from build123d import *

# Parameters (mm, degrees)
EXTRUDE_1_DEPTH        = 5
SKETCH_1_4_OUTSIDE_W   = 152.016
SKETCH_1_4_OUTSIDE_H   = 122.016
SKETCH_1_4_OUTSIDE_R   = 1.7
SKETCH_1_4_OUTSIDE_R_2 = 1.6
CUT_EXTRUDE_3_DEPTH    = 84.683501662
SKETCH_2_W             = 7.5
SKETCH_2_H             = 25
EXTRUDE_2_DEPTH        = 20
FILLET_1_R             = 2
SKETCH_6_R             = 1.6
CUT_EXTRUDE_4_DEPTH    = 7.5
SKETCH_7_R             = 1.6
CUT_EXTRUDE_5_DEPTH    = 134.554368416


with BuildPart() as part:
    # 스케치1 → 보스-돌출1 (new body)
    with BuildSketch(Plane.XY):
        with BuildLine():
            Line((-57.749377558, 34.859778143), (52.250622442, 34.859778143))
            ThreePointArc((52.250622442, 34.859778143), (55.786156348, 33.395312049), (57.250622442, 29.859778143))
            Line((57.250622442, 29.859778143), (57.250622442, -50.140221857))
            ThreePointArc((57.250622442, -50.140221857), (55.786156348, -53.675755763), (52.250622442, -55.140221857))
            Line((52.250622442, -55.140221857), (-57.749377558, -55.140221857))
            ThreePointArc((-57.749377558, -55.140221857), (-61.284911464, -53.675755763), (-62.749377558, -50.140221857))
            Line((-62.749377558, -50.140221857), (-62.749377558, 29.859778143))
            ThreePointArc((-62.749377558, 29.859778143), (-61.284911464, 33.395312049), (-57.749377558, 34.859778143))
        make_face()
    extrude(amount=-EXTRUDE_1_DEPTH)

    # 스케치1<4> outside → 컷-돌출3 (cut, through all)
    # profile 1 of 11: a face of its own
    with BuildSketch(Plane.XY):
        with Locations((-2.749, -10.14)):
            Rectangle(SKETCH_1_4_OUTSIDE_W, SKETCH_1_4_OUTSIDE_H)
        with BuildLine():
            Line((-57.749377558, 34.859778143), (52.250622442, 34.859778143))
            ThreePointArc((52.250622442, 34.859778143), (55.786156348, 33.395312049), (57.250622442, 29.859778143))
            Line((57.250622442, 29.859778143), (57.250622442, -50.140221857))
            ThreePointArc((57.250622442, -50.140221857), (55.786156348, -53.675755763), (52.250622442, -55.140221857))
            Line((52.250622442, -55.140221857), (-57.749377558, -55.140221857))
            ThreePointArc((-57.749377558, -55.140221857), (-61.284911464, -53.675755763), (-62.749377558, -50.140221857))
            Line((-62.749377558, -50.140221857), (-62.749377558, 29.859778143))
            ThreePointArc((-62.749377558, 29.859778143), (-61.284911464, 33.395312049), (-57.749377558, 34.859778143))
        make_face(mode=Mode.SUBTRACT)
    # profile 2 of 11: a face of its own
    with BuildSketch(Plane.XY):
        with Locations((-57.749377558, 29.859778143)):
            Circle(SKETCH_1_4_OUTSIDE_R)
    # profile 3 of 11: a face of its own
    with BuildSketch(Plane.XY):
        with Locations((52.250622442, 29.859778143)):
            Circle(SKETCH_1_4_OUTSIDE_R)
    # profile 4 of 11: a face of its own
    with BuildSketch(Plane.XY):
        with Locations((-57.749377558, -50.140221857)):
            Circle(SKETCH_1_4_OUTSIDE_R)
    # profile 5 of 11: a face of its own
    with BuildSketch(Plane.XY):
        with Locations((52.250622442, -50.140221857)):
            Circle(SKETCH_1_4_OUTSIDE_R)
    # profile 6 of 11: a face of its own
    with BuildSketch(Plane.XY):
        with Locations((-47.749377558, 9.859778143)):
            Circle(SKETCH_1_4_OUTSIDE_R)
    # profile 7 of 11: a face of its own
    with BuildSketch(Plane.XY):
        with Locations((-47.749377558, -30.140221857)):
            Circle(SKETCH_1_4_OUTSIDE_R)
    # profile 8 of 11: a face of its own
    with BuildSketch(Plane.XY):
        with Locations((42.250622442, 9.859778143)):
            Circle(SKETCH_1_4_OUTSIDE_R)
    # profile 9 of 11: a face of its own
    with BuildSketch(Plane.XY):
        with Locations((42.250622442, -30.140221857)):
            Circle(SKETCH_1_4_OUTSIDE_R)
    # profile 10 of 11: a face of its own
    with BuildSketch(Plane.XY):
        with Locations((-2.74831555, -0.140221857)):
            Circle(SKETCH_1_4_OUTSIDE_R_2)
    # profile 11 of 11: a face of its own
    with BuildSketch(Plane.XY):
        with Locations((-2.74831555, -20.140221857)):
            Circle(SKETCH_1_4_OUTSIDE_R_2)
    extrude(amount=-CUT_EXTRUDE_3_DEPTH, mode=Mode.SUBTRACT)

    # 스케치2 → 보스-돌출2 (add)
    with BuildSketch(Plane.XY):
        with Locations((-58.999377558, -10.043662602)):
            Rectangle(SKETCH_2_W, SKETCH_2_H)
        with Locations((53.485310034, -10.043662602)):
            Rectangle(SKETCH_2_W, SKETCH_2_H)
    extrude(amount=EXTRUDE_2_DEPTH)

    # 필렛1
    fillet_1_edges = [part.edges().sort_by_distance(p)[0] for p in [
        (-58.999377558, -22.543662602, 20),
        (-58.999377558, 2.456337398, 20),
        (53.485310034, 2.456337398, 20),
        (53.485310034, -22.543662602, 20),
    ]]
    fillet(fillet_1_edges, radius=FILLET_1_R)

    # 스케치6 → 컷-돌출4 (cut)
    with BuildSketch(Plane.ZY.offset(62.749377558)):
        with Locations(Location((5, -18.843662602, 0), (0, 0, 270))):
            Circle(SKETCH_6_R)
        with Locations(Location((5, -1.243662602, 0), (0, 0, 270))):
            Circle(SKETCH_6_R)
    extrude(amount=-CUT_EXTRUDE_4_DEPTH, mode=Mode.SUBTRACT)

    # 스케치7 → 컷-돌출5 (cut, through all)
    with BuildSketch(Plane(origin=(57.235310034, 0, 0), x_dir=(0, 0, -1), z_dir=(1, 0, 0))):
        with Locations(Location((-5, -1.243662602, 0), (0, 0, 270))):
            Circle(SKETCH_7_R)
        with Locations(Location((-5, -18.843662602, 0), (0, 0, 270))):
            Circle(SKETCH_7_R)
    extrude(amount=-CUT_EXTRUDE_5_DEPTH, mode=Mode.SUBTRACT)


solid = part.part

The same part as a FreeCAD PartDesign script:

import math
import FreeCAD as App
import Part
import Sketcher
from FreeCAD import Vector
Q = App.Units.Quantity


def edges_at(feature, points):
    """Names of the edges that pass closest to the given points."""
    edges = feature.Shape.Edges
    near = lambda p: min(range(len(edges)), key=lambda i: edges[i].distToShape(Part.Vertex(*p))[0])
    return sorted({f"Edge{near(p) + 1}" for p in points})

doc = App.newDocument("Part")
params = doc.addObject("Spreadsheet::Sheet", "Params")
for row, (alias, value) in enumerate([
    ("sketch1_radius", "5 mm"),
    ("sketch1_width", "110 mm"),
    ("sketch1_height", "80 mm"),
    ("pad1_length", "5 mm"),
    ("sketch2_radius", "5 mm"),
    ("sketch2_diameter", "3.4 mm"),
    ("sketch2_diameter2", "3.2 mm"),
    ("sketch2_width", "110 mm"),
    ("sketch2_height", "80 mm"),
    ("pocket1_length", "84.683502 mm"),
    ("sketch3_height", "25 mm"),
    ("sketch3_width", "7.5 mm"),
    ("pad2_length", "20 mm"),
    ("fillet_radius", "2 mm"),
    ("sketch4_diameter", "3.2 mm"),
    ("pocket2_length", "7.5 mm"),
    ("sketch5_diameter", "3.2 mm"),
], start=1):
    params.set(f"A{row}", alias)
    params.set(f"B{row}", "=" + value)
    params.setAlias(f"B{row}", alias)

body = doc.addObject("PartDesign::Body", "Body")

# Sketch on XY plane
sketch1 = doc.addObject("Sketcher::SketchObject", "Sketch")
body.addObject(sketch1)
sketch1.AttachmentSupport = (doc.XY_Plane, [""])
sketch1.MapMode = "FlatFace"
sketch1.addGeometry([
    Part.LineSegment(Vector(52, 35, 0), Vector(-58, 35, 0)),  # 0
    Part.ArcOfCircle(Part.Circle(Vector(-58, 30, 0), Vector(0, 0, 1), 5), math.radians(90), math.radians(180)),  # 1
    Part.LineSegment(Vector(-63, 30, 0), Vector(-63, -50, 0)),  # 2
    Part.ArcOfCircle(Part.Circle(Vector(-58, -50, 0), Vector(0, 0, 1), 5), math.radians(180), math.radians(270)),  # 3
    Part.LineSegment(Vector(-58, -55, 0), Vector(52, -55, 0)),  # 4
    Part.ArcOfCircle(Part.Circle(Vector(52, -50, 0), Vector(0, 0, 1), 5), math.radians(-90), math.radians(0)),  # 5
    Part.LineSegment(Vector(57, -50, 0), Vector(57, 30, 0)),  # 6
    Part.ArcOfCircle(Part.Circle(Vector(52, 30, 0), Vector(0, 0, 1), 5), math.radians(0), math.radians(90)),  # 7
], False)
sketch1.addConstraint([
    Sketcher.Constraint("Tangent", 0, 2, 1, 1),
    Sketcher.Constraint("Tangent", 1, 2, 2, 1),
    Sketcher.Constraint("Tangent", 2, 2, 3, 1),
    Sketcher.Constraint("Tangent", 3, 2, 4, 1),
    Sketcher.Constraint("Tangent", 4, 2, 5, 1),
    Sketcher.Constraint("Tangent", 5, 2, 6, 1),
    Sketcher.Constraint("Tangent", 6, 2, 7, 1),
    Sketcher.Constraint("Tangent", 7, 2, 0, 1),
    Sketcher.Constraint("Horizontal", 0),
    Sketcher.Constraint("Vertical", 2),
    Sketcher.Constraint("Horizontal", 4),
    Sketcher.Constraint("Vertical", 6),
    Sketcher.Constraint("Equal", 1, 3),
    Sketcher.Constraint("Equal", 3, 5),
    Sketcher.Constraint("Equal", 5, 7),
    Sketcher.Constraint("Radius", 1, Q("5 mm")),
    Sketcher.Constraint("DistanceX", 0, 2, 0, 1, Q("110 mm")),
    Sketcher.Constraint("DistanceY", 2, 2, 2, 1, Q("80 mm")),
    Sketcher.Constraint("DistanceY", -1, 1, 1, 3, Q("29.859778 mm")),
    Sketcher.Constraint("DistanceX", 1, 3, -1, 1, Q("57.749378 mm")),
])
sketch1.setExpression("Constraints[15]", "Params.sketch1_radius")
sketch1.setExpression("Constraints[16]", "Params.sketch1_width")
sketch1.setExpression("Constraints[17]", "Params.sketch1_height")
pad1 = doc.addObject("PartDesign::Pad", "Pad")
body.addObject(pad1)
pad1.Profile = sketch1
pad1.setExpression("Length", "Params.pad1_length")
pad1.Reversed = True

# Sketch on XY plane
sketch2 = doc.addObject("Sketcher::SketchObject", "Sketch001")
body.addObject(sketch2)
sketch2.AttachmentSupport = (doc.XY_Plane, [""])
sketch2.MapMode = "FlatFace"
sketch2.addGeometry([
    Part.LineSegment(Vector(-78.8, 50.9, 0), Vector(-78.8, -71.1, 0)),  # 0
    Part.LineSegment(Vector(-78.8, -71.1, 0), Vector(73.3, -71.1, 0)),  # 1
    Part.LineSegment(Vector(73.3, -71.1, 0), Vector(73.3, 50.9, 0)),  # 2
    Part.LineSegment(Vector(73.3, 50.9, 0), Vector(-78.8, 50.9, 0)),  # 3
    Part.ArcOfCircle(Part.Circle(Vector(-57.7, 29.9, 0), Vector(0, 0, 1), 5), math.radians(90), math.radians(180)),  # 4
    Part.LineSegment(Vector(-57.7, 34.9, 0), Vector(52.3, 34.9, 0)),  # 5
    Part.ArcOfCircle(Part.Circle(Vector(52.3, 29.9, 0), Vector(0, 0, 1), 5), math.radians(0), math.radians(90)),  # 6
    Part.LineSegment(Vector(57.3, 29.9, 0), Vector(57.3, -50.1, 0)),  # 7
    Part.ArcOfCircle(Part.Circle(Vector(52.3, -50.1, 0), Vector(0, 0, 1), 5), math.radians(-90), math.radians(0)),  # 8
    Part.LineSegment(Vector(52.3, -55.1, 0), Vector(-57.7, -55.1, 0)),  # 9
    Part.ArcOfCircle(Part.Circle(Vector(-57.7, -50.1, 0), Vector(0, 0, 1), 5), math.radians(180), math.radians(270)),  # 10
    Part.LineSegment(Vector(-62.7, -50.1, 0), Vector(-62.7, 29.9, 0)),  # 11
    Part.Circle(Vector(-57.7, 29.9, 0), Vector(0, 0, 1), 1.7),  # 12
    Part.Circle(Vector(52.3, 29.9, 0), Vector(0, 0, 1), 1.7),  # 13
    Part.Circle(Vector(-57.7, -50.1, 0), Vector(0, 0, 1), 1.7),  # 14
    Part.Circle(Vector(52.3, -50.1, 0), Vector(0, 0, 1), 1.7),  # 15
    Part.Circle(Vector(-47.7, 9.9, 0), Vector(0, 0, 1), 1.7),  # 16
    Part.Circle(Vector(-47.7, -30.1, 0), Vector(0, 0, 1), 1.7),  # 17
    Part.Circle(Vector(42.3, 9.9, 0), Vector(0, 0, 1), 1.7),  # 18
    Part.Circle(Vector(42.3, -30.1, 0), Vector(0, 0, 1), 1.7),  # 19
    Part.Circle(Vector(-2.7, -0.1, 0), Vector(0, 0, 1), 1.6),  # 20
    Part.Circle(Vector(-2.7, -20.1, 0), Vector(0, 0, 1), 1.6),  # 21
], False)
sketch2.addConstraint([
    Sketcher.Constraint("Coincident", 0, 2, 1, 1),
    Sketcher.Constraint("Coincident", 1, 2, 2, 1),
    Sketcher.Constraint("Coincident", 2, 2, 3, 1),
    Sketcher.Constraint("Coincident", 3, 2, 0, 1),
    Sketcher.Constraint("Tangent", 4, 1, 5, 1),
    Sketcher.Constraint("Tangent", 5, 2, 6, 2),
    Sketcher.Constraint("Tangent", 6, 1, 7, 1),
    Sketcher.Constraint("Tangent", 7, 2, 8, 2),
    Sketcher.Constraint("Tangent", 8, 1, 9, 1),
    Sketcher.Constraint("Tangent", 9, 2, 10, 2),
    Sketcher.Constraint("Tangent", 10, 1, 11, 1),
    Sketcher.Constraint("Tangent", 11, 2, 4, 2),
    Sketcher.Constraint("Vertical", 0),
    Sketcher.Constraint("Horizontal", 1),
    Sketcher.Constraint("Vertical", 2),
    Sketcher.Constraint("Horizontal", 3),
    Sketcher.Constraint("Horizontal", 5),
    Sketcher.Constraint("Vertical", 7),
    Sketcher.Constraint("Horizontal", 9),
    Sketcher.Constraint("Vertical", 11),
    Sketcher.Constraint("Coincident", 12, 3, 4, 3),
    Sketcher.Constraint("Coincident", 13, 3, 6, 3),
    Sketcher.Constraint("Coincident", 14, 3, 10, 3),
    Sketcher.Constraint("Coincident", 15, 3, 8, 3),
    Sketcher.Constraint("Equal", 4, 6),
    Sketcher.Constraint("Equal", 6, 8),
    Sketcher.Constraint("Equal", 8, 10),
    Sketcher.Constraint("Equal", 12, 13),
    Sketcher.Constraint("Equal", 13, 14),
    Sketcher.Constraint("Equal", 14, 15),
    Sketcher.Constraint("Equal", 15, 16),
    Sketcher.Constraint("Equal", 16, 17),
    Sketcher.Constraint("Equal", 17, 18),
    Sketcher.Constraint("Equal", 18, 19),
    Sketcher.Constraint("Equal", 20, 21),
    Sketcher.Constraint("Horizontal", 16, 3, 18, 3),
    Sketcher.Constraint("Horizontal", 17, 3, 19, 3),
    Sketcher.Constraint("Vertical", 16, 3, 17, 3),
    Sketcher.Constraint("Vertical", 18, 3, 19, 3),
    Sketcher.Constraint("Vertical", 20, 3, 21, 3),
    Sketcher.Constraint("Radius", 4, Q("5 mm")),
    Sketcher.Constraint("Diameter", 12, Q("3.4 mm")),
    Sketcher.Constraint("Diameter", 20, Q("3.2 mm")),
    Sketcher.Constraint("DistanceX", 5, 1, 5, 2, Q("110 mm")),
    Sketcher.Constraint("DistanceY", 7, 2, 7, 1, Q("80 mm")),
    Sketcher.Constraint("DistanceX", 4, 3, 16, 3, Q("10 mm")),
    Sketcher.Constraint("DistanceY", 16, 3, 4, 3, Q("20 mm")),
    Sketcher.Constraint("DistanceY", 10, 3, 17, 3, Q("20 mm")),
    Sketcher.Constraint("DistanceX", 18, 3, 6, 3, Q("10 mm")),
    Sketcher.Constraint("DistanceY", 20, 3, 18, 3, Q("10 mm")),
    Sketcher.Constraint("DistanceY", 21, 3, 20, 3, Q("20 mm")),
    Sketcher.Constraint("DistanceX", 1, 1, 1, 2, Q("152.016 mm")),
    Sketcher.Constraint("DistanceY", 0, 2, 0, 1, Q("122.016 mm")),
    Sketcher.Constraint("DistanceX", 0, 2, -1, 1, Q("78.757 mm")),
    Sketcher.Constraint("DistanceY", 0, 2, -1, 1, Q("71.148 mm")),
    Sketcher.Constraint("DistanceY", -1, 1, 4, 3, Q("29.859778 mm")),
    Sketcher.Constraint("DistanceX", 4, 3, -1, 1, Q("57.749378 mm")),
    Sketcher.Constraint("DistanceX", 20, 3, -1, 1, Q("2.748316 mm")),
])
sketch2.setExpression("Constraints[40]", "Params.sketch2_radius")
sketch2.setExpression("Constraints[41]", "Params.sketch2_diameter")
sketch2.setExpression("Constraints[42]", "Params.sketch2_diameter2")
sketch2.setExpression("Constraints[43]", "Params.sketch2_width")
sketch2.setExpression("Constraints[44]", "Params.sketch2_height")
pocket1 = doc.addObject("PartDesign::Pocket", "Pocket")
body.addObject(pocket1)
pocket1.Profile = sketch2
pocket1.setExpression("Length", "Params.pocket1_length")

# Sketch on XY plane
sketch3 = doc.addObject("Sketcher::SketchObject", "Sketch002")
body.addObject(sketch3)
sketch3.AttachmentSupport = (doc.XY_Plane, [""])
sketch3.MapMode = "FlatFace"
sketch3.addGeometry([
    Part.LineSegment(Vector(-63, 2, 0), Vector(-63, -23, 0)),  # 0
    Part.LineSegment(Vector(-63, -23, 0), Vector(-55, -23, 0)),  # 1
    Part.LineSegment(Vector(-55, -23, 0), Vector(-55, 2, 0)),  # 2
    Part.LineSegment(Vector(-55, 2, 0), Vector(-63, 2, 0)),  # 3
    Part.LineSegment(Vector(50, 2, 0), Vector(50, -23, 0)),  # 4
    Part.LineSegment(Vector(50, -23, 0), Vector(57, -23, 0)),  # 5
    Part.LineSegment(Vector(57, -23, 0), Vector(57, 2, 0)),  # 6
    Part.LineSegment(Vector(57, 2, 0), Vector(50, 2, 0)),  # 7
], False)
sketch3.addConstraint([
    Sketcher.Constraint("Coincident", 0, 2, 1, 1),
    Sketcher.Constraint("Coincident", 1, 2, 2, 1),
    Sketcher.Constraint("Coincident", 2, 2, 3, 1),
    Sketcher.Constraint("Coincident", 3, 2, 0, 1),
    Sketcher.Constraint("Coincident", 4, 2, 5, 1),
    Sketcher.Constraint("Coincident", 5, 2, 6, 1),
    Sketcher.Constraint("Coincident", 6, 2, 7, 1),
    Sketcher.Constraint("Coincident", 7, 2, 4, 1),
    Sketcher.Constraint("Vertical", 0),
    Sketcher.Constraint("Horizontal", 1),
    Sketcher.Constraint("Vertical", 2),
    Sketcher.Constraint("Horizontal", 3),
    Sketcher.Constraint("Vertical", 4),
    Sketcher.Constraint("Horizontal", 5),
    Sketcher.Constraint("Vertical", 6),
    Sketcher.Constraint("Horizontal", 7),
    Sketcher.Constraint("Horizontal", 1, 2, 4, 2),
    Sketcher.Constraint("Horizontal", 3, 2, 6, 2),
    Sketcher.Constraint("Equal", 3, 5),
    Sketcher.Constraint("DistanceY", 0, 2, 0, 1, Q("25 mm")),
    Sketcher.Constraint("DistanceX", 1, 1, 1, 2, Q("7.5 mm")),
    Sketcher.Constraint("DistanceX", -1, 1, 4, 2, Q("49.73531 mm")),
    Sketcher.Constraint("DistanceX", 0, 2, -1, 1, Q("62.749378 mm")),
    Sketcher.Constraint("DistanceY", 0, 2, -1, 1, Q("22.543663 mm")),
])
sketch3.setExpression("Constraints[19]", "Params.sketch3_height")
sketch3.setExpression("Constraints[20]", "Params.sketch3_width")
pad2 = doc.addObject("PartDesign::Pad", "Pad001")
body.addObject(pad2)
pad2.Profile = sketch3
pad2.setExpression("Length", "Params.pad2_length")
doc.recompute()

fillet = doc.addObject("PartDesign::Fillet", "Fillet")
body.addObject(fillet)
fillet.Base = (pad2, edges_at(pad2, [
    (-58.999, -22.544, 20),
    (-58.999, 2.456, 20),
    (53.485, 2.456, 20),
    (53.485, -22.544, 20),
]))
fillet.setExpression("Radius", "Params.fillet_radius")

# Sketch on YZ plane
sketch4 = doc.addObject("Sketcher::SketchObject", "Sketch003")
body.addObject(sketch4)
sketch4.AttachmentSupport = (doc.YZ_Plane, [""])
sketch4.MapMode = "FlatFace"
sketch4.AttachmentOffset = App.Placement(Vector(0, 0, -62.749378), App.Rotation())
sketch4.addGeometry([
    Part.Circle(Vector(-18.8, 5, 0), Vector(0, 0, 1), 1.6),
    Part.Circle(Vector(-1.2, 5, 0), Vector(0, 0, 1), 1.6),
], False)
sketch4.addConstraint([
    Sketcher.Constraint("Equal", 0, 1),
    Sketcher.Constraint("Horizontal", 0, 3, 1, 3),
    Sketcher.Constraint("Diameter", 0, Q("3.2 mm")),
    Sketcher.Constraint("DistanceY", -1, 1, 0, 3, Q("5 mm")),
    Sketcher.Constraint("DistanceX", 0, 3, 1, 3, Q("17.6 mm")),
    Sketcher.Constraint("DistanceX", 0, 3, -1, 1, Q("18.843663 mm")),
])
sketch4.setExpression("Constraints[2]", "Params.sketch4_diameter")
pocket2 = doc.addObject("PartDesign::Pocket", "Pocket001")
body.addObject(pocket2)
pocket2.Profile = sketch4
pocket2.setExpression("Length", "Params.pocket2_length")
pocket2.Reversed = True

# Sketch on YZ plane
sketch5 = doc.addObject("Sketcher::SketchObject", "Sketch004")
body.addObject(sketch5)
sketch5.AttachmentSupport = (doc.YZ_Plane, [""])
sketch5.MapMode = "FlatFace"
sketch5.AttachmentOffset = App.Placement(Vector(0, 0, 57.23531), App.Rotation())
sketch5.addGeometry([
    Part.Circle(Vector(-1.2, 5, 0), Vector(0, 0, 1), 1.6),
    Part.Circle(Vector(-18.8, 5, 0), Vector(0, 0, 1), 1.6),
], False)
sketch5.addConstraint([
    Sketcher.Constraint("Equal", 0, 1),
    Sketcher.Constraint("Horizontal", 0, 3, 1, 3),
    Sketcher.Constraint("Diameter", 0, Q("3.2 mm")),
    Sketcher.Constraint("DistanceY", -1, 1, 0, 3, Q("5 mm")),
    Sketcher.Constraint("DistanceX", 1, 3, 0, 3, Q("17.6 mm")),
    Sketcher.Constraint("DistanceX", 0, 3, -1, 1, Q("1.243663 mm")),
])
sketch5.setExpression("Constraints[2]", "Params.sketch5_diameter")
pocket3 = doc.addObject("PartDesign::Pocket", "Pocket002")
body.addObject(pocket3)
pocket3.Profile = sketch5
pocket3.Type = "ThroughAll"

doc.recompute()
